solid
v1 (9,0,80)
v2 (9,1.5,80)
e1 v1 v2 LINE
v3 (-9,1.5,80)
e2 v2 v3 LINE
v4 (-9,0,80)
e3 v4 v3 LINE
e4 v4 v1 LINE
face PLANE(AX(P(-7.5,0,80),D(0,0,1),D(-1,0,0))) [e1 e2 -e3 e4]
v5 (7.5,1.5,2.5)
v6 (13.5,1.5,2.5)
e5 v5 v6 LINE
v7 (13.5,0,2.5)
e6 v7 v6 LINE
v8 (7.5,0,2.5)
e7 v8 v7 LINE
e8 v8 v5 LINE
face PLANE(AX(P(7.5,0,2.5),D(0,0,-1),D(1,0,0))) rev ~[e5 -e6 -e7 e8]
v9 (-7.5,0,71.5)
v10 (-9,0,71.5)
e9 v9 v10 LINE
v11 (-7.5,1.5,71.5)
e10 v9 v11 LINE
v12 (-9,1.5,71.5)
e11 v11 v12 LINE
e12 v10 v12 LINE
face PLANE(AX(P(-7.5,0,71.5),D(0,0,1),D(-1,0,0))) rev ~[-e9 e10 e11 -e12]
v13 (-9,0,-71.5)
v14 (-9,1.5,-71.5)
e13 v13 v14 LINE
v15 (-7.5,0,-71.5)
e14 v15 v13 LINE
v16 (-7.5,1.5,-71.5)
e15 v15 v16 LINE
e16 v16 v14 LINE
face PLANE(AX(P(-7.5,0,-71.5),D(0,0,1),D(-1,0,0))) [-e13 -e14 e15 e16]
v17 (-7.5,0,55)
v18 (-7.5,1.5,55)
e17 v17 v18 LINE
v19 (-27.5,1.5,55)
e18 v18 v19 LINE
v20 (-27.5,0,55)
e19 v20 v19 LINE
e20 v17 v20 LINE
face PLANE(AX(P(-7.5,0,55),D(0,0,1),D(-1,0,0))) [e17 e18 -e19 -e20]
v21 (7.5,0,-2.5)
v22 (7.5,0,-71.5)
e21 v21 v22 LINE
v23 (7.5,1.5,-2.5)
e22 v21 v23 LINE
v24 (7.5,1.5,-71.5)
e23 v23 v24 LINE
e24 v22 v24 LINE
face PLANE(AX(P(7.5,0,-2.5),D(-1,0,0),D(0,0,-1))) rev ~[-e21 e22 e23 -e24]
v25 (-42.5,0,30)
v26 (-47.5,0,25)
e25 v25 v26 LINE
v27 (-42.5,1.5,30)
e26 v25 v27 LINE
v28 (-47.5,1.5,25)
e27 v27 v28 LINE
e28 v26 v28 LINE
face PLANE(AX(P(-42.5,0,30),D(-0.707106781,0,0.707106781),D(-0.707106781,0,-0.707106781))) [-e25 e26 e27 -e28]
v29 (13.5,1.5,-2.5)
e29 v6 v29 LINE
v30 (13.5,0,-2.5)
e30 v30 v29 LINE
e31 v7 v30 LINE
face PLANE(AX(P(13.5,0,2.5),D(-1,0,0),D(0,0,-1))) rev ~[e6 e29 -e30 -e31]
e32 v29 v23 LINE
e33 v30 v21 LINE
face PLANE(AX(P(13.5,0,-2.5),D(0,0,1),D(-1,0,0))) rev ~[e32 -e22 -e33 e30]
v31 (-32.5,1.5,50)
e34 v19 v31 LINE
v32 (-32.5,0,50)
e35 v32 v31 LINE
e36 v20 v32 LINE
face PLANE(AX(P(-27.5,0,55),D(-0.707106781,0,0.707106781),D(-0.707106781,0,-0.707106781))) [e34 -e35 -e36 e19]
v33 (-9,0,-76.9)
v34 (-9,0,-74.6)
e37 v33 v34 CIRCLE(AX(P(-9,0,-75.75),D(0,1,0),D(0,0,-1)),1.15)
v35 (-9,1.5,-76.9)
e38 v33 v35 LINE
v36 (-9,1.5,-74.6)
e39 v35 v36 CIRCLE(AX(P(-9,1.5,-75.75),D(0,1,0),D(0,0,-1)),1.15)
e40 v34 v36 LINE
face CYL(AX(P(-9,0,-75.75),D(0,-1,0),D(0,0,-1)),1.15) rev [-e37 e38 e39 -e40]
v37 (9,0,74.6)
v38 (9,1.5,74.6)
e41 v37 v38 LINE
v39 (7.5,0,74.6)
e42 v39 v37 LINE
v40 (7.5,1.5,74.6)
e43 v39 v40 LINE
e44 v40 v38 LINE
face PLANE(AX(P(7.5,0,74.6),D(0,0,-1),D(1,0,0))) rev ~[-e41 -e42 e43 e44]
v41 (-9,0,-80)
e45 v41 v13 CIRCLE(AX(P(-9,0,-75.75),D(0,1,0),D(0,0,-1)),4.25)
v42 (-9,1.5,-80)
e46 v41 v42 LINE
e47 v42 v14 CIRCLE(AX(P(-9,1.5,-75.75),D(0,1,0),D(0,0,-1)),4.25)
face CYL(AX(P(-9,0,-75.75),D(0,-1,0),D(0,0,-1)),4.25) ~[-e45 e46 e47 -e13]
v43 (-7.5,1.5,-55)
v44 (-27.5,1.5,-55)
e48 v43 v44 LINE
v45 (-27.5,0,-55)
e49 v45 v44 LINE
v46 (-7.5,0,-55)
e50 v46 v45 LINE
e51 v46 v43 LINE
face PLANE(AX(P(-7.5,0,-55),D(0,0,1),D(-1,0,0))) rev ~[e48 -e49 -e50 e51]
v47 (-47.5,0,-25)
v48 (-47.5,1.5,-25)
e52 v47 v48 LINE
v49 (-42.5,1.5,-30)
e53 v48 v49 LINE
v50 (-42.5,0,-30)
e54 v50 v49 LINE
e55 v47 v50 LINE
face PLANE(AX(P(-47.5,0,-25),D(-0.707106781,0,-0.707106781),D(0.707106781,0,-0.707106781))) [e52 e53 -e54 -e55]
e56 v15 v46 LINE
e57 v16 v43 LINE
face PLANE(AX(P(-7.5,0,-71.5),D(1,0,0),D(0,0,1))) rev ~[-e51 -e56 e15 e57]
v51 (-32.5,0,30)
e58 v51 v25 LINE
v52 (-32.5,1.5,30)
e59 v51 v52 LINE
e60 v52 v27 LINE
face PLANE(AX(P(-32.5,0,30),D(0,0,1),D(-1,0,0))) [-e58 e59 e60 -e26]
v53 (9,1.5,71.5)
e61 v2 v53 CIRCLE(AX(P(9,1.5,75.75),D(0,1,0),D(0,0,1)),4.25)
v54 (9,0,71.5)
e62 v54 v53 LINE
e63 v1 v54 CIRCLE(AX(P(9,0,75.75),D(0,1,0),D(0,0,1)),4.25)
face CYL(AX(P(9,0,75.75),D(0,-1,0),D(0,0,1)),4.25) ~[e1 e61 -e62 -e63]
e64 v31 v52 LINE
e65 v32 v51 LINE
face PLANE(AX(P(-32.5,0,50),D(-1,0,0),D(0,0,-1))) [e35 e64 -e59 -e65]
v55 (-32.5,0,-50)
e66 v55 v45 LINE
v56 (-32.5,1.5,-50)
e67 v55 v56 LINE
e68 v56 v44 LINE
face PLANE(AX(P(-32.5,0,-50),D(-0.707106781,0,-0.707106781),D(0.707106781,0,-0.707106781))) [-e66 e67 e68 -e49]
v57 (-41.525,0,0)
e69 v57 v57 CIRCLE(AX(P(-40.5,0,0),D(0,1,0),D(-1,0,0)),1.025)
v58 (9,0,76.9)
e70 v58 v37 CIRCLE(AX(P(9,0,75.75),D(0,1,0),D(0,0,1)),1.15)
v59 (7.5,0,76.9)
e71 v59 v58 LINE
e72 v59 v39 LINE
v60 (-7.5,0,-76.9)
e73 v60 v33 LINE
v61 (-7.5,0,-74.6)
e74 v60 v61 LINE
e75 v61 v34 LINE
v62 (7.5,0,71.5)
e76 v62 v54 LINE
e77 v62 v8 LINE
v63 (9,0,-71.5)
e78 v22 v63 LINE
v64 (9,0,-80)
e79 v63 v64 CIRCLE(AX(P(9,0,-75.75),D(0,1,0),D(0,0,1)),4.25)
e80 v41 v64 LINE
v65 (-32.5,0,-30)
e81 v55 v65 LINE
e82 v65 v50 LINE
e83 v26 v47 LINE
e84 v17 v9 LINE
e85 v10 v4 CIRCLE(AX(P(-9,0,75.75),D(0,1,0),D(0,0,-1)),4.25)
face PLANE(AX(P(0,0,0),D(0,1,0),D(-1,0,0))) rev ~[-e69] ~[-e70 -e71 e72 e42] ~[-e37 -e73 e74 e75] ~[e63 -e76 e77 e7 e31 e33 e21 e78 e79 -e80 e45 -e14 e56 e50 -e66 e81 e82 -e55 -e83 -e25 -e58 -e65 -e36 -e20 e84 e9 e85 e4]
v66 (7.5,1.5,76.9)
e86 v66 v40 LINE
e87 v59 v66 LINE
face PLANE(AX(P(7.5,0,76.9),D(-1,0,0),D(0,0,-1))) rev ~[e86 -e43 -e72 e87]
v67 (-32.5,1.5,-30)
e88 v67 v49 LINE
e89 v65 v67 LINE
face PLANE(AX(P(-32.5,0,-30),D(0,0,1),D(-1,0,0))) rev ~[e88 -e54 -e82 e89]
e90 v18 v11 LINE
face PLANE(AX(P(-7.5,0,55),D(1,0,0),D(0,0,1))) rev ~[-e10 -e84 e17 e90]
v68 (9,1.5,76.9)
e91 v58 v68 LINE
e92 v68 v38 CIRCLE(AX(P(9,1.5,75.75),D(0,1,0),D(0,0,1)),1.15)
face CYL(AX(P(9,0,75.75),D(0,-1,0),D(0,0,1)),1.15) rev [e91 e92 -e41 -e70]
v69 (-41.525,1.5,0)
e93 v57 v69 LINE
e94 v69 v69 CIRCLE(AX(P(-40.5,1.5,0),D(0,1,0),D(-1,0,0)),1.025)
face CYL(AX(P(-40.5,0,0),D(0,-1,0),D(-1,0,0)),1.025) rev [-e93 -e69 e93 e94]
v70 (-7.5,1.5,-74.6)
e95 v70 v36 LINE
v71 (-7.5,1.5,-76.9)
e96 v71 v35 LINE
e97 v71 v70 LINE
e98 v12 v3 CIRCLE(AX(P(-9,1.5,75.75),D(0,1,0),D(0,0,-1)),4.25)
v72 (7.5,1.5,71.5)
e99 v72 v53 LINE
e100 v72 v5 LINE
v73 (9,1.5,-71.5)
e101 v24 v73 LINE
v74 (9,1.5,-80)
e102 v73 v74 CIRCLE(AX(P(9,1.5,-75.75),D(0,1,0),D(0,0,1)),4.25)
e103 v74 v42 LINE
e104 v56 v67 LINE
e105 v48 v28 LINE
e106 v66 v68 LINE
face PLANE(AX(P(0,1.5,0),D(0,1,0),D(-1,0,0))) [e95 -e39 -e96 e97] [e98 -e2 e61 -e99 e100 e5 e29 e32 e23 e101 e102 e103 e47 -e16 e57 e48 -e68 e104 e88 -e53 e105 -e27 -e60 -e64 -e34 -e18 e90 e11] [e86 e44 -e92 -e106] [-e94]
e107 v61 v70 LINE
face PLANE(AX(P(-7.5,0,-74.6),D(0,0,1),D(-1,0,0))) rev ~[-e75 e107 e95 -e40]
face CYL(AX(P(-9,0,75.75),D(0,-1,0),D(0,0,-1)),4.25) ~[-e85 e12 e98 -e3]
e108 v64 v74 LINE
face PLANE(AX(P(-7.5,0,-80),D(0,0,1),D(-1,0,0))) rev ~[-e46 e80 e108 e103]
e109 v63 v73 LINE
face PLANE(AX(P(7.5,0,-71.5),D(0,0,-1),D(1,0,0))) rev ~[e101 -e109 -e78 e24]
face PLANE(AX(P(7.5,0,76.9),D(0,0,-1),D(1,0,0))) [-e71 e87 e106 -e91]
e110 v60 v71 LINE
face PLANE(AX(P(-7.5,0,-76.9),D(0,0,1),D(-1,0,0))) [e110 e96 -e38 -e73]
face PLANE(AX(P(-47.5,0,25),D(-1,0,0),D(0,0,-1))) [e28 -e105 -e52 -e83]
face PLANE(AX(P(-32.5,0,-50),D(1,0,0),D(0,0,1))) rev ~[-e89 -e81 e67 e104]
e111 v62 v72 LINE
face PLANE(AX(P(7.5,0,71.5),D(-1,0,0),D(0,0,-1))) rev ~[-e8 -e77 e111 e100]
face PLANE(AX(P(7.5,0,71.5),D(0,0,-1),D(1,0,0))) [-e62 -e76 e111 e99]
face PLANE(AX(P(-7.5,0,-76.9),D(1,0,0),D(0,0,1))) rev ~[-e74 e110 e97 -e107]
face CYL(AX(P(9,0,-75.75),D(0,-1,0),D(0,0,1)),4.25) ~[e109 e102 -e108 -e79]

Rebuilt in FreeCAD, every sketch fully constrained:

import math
import FreeCAD as App
import Part
import Sketcher

doc = App.newDocument("Part")
params = doc.addObject("Spreadsheet::Sheet", "Params")
for row, (alias, value) in enumerate([
    ("sketch1_diameter", "2.05 mm"),
    ("sketch1_height", "5 mm"),
    ("sketch1_radius", "4.25 mm"),
    ("sketch1_radius2", "1.15 mm"),
    ("sketch1_width", "1.5 mm"),
    ("pad1_length", "1.5 mm"),
], start=1):
    params.set(f"A{row}", alias)
    params.set(f"B{row}", "=" + value)
    params.setAlias(f"B{row}", alias)

body = doc.addObject("PartDesign::Body", "Body")

# Sketch on XZ plane
sketch1 = doc.addObject("Sketcher::SketchObject", "Sketch")
body.addObject(sketch1)
sketch1.AttachmentSupport = (doc.XZ_Plane, [""])
sketch1.MapMode = "FlatFace"
sketch1.addGeometry(Part.LineSegment(App.Vector(-9, 80, 0), App.Vector(9, 80, 0)), False)
sketch1.addGeometry(Part.ArcOfCircle(Part.Circle(App.Vector(9, 75.8, 0), App.Vector(0, 0, 1), 4.2), math.radians(-90), math.radians(90)), False)
sketch1.addGeometry(Part.LineSegment(App.Vector(9, 71.5, 0), App.Vector(7.5, 71.5, 0)), False)
sketch1.addGeometry(Part.LineSegment(App.Vector(7.5, 71.5, 0), App.Vector(7.5, 2.5, 0)), False)
sketch1.addGeometry(Part.LineSegment(App.Vector(7.5, 2.5, 0), App.Vector(13.5, 2.5, 0)), False)
sketch1.addGeometry(Part.LineSegment(App.Vector(13.5, 2.5, 0), App.Vector(13.5, -2.5, 0)), False)
sketch1.addGeometry(Part.LineSegment(App.Vector(13.5, -2.5, 0), App.Vector(7.5, -2.5, 0)), False)
sketch1.addGeometry(Part.LineSegment(App.Vector(7.5, -2.5, 0), App.Vector(7.5, -71.5, 0)), False)
sketch1.addGeometry(Part.LineSegment(App.Vector(7.5, -71.5, 0), App.Vector(9, -71.5, 0)), False)
sketch1.addGeometry(Part.ArcOfCircle(Part.Circle(App.Vector(9, -75.8, 0), App.Vector(0, 0, 1), 4.2), math.radians(-90), math.radians(90)), False)
sketch1.addGeometry(Part.LineSegment(App.Vector(9, -80, 0), App.Vector(-9, -80, 0)), False)
sketch1.addGeometry(Part.ArcOfCircle(Part.Circle(App.Vector(-9, -75.8, 0), App.Vector(0, 0, 1), 4.2), math.radians(90), math.radians(270)), False)
sketch1.addGeometry(Part.LineSegment(App.Vector(-9, -71.5, 0), App.Vector(-7.5, -71.5, 0)), False)
sketch1.addGeometry(Part.LineSegment(App.Vector(-7.5, -71.5, 0), App.Vector(-7.5, -55, 0)), False)
sketch1.addGeometry(Part.LineSegment(App.Vector(-7.5, -55, 0), App.Vector(-27.5, -55, 0)), False)
sketch1.addGeometry(Part.LineSegment(App.Vector(-27.5, -55, 0), App.Vector(-32.5, -50, 0)), False)
sketch1.addGeometry(Part.LineSegment(App.Vector(-32.5, -50, 0), App.Vector(-32.5, -30, 0)), False)
sketch1.addGeometry(Part.LineSegment(App.Vector(-32.5, -30, 0), App.Vector(-42.5, -30, 0)), False)
sketch1.addGeometry(Part.LineSegment(App.Vector(-42.5, -30, 0), App.Vector(-47.5, -25, 0)), False)
sketch1.addGeometry(Part.LineSegment(App.Vector(-47.5, -25, 0), App.Vector(-47.5, 25, 0)), False)
sketch1.addGeometry(Part.LineSegment(App.Vector(-47.5, 25, 0), App.Vector(-42.5, 30, 0)), False)
sketch1.addGeometry(Part.LineSegment(App.Vector(-42.5, 30, 0), App.Vector(-32.5, 30, 0)), False)
sketch1.addGeometry(Part.LineSegment(App.Vector(-32.5, 30, 0), App.Vector(-32.5, 50, 0)), False)
sketch1.addGeometry(Part.LineSegment(App.Vector(-32.5, 50, 0), App.Vector(-27.5, 55, 0)), False)
sketch1.addGeometry(Part.LineSegment(App.Vector(-27.5, 55, 0), App.Vector(-7.5, 55, 0)), False)
sketch1.addGeometry(Part.LineSegment(App.Vector(-7.5, 55, 0), App.Vector(-7.5, 71.5, 0)), False)
sketch1.addGeometry(Part.LineSegment(App.Vector(-7.5, 71.5, 0), App.Vector(-9, 71.5, 0)), False)
sketch1.addGeometry(Part.ArcOfCircle(Part.Circle(App.Vector(-9, 75.8, 0), App.Vector(0, 0, 1), 4.2), math.radians(90), math.radians(270)), False)
sketch1.addGeometry(Part.LineSegment(App.Vector(-7.5, -76.9, 0), App.Vector(-7.5, -74.6, 0)), False)
sketch1.addGeometry(Part.LineSegment(App.Vector(-7.5, -74.6, 0), App.Vector(-9, -74.6, 0)), False)
sketch1.addGeometry(Part.ArcOfCircle(Part.Circle(App.Vector(-9, -75.8, 0), App.Vector(0, 0, 1), 1.2), math.radians(90), math.radians(270)), False)
sketch1.addGeometry(Part.LineSegment(App.Vector(-9, -76.9, 0), App.Vector(-7.5, -76.9, 0)), False)
sketch1.addGeometry(Part.LineSegment(App.Vector(7.5, 76.9, 0), App.Vector(7.5, 74.6, 0)), False)
sketch1.addGeometry(Part.LineSegment(App.Vector(7.5, 74.6, 0), App.Vector(9, 74.6, 0)), False)
sketch1.addGeometry(Part.ArcOfCircle(Part.Circle(App.Vector(9, 75.8, 0), App.Vector(0, 0, 1), 1.2), math.radians(-90), math.radians(90)), False)
sketch1.addGeometry(Part.LineSegment(App.Vector(9, 76.9, 0), App.Vector(7.5, 76.9, 0)), False)
sketch1.addGeometry(Part.Circle(App.Vector(-40.5, 0, 0), App.Vector(0, 0, 1), 1), False)
sketch1.addConstraint(Sketcher.Constraint("Tangent", 0, 2, 1, 2))
sketch1.addConstraint(Sketcher.Constraint("Tangent", 1, 1, 2, 1))
sketch1.addConstraint(Sketcher.Constraint("Coincident", 2, 2, 3, 1))
sketch1.addConstraint(Sketcher.Constraint("Coincident", 3, 2, 4, 1))
sketch1.addConstraint(Sketcher.Constraint("Coincident", 4, 2, 5, 1))
sketch1.addConstraint(Sketcher.Constraint("Coincident", 5, 2, 6, 1))
sketch1.addConstraint(Sketcher.Constraint("Coincident", 6, 2, 7, 1))
sketch1.addConstraint(Sketcher.Constraint("Coincident", 7, 2, 8, 1))
sketch1.addConstraint(Sketcher.Constraint("Tangent", 8, 2, 9, 2))
sketch1.addConstraint(Sketcher.Constraint("Tangent", 9, 1, 10, 1))
sketch1.addConstraint(Sketcher.Constraint("Tangent", 10, 2, 11, 2))
sketch1.addConstraint(Sketcher.Constraint("Tangent", 11, 1, 12, 1))
sketch1.addConstraint(Sketcher.Constraint("Coincident", 12, 2, 13, 1))
sketch1.addConstraint(Sketcher.Constraint("Coincident", 13, 2, 14, 1))
sketch1.addConstraint(Sketcher.Constraint("Coincident", 14, 2, 15, 1))
sketch1.addConstraint(Sketcher.Constraint("Coincident", 15, 2, 16, 1))
sketch1.addConstraint(Sketcher.Constraint("Coincident", 16, 2, 17, 1))
sketch1.addConstraint(Sketcher.Constraint("Coincident", 17, 2, 18, 1))
sketch1.addConstraint(Sketcher.Constraint("Coincident", 18, 2, 19, 1))
sketch1.addConstraint(Sketcher.Constraint("Coincident", 19, 2, 20, 1))
sketch1.addConstraint(Sketcher.Constraint("Coincident", 20, 2, 21, 1))
sketch1.addConstraint(Sketcher.Constraint("Coincident", 21, 2, 22, 1))
sketch1.addConstraint(Sketcher.Constraint("Coincident", 22, 2, 23, 1))
sketch1.addConstraint(Sketcher.Constraint("Coincident", 23, 2, 24, 1))
sketch1.addConstraint(Sketcher.Constraint("Coincident", 24, 2, 25, 1))
sketch1.addConstraint(Sketcher.Constraint("Coincident", 25, 2, 26, 1))
sketch1.addConstraint(Sketcher.Constraint("Tangent", 26, 2, 27, 2))
sketch1.addConstraint(Sketcher.Constraint("Tangent", 27, 1, 0, 1))
sketch1.addConstraint(Sketcher.Constraint("Coincident", 28, 2, 29, 1))
sketch1.addConstraint(Sketcher.Constraint("Tangent", 29, 2, 30, 1))
sketch1.addConstraint(Sketcher.Constraint("Tangent", 30, 2, 31, 1))
sketch1.addConstraint(Sketcher.Constraint("Coincident", 31, 2, 28, 1))
sketch1.addConstraint(Sketcher.Constraint("Coincident", 32, 2, 33, 1))
sketch1.addConstraint(Sketcher.Constraint("Tangent", 33, 2, 34, 1))
sketch1.addConstraint(Sketcher.Constraint("Tangent", 34, 2, 35, 1))
sketch1.addConstraint(Sketcher.Constraint("Coincident", 35, 2, 32, 1))
sketch1.addConstraint(Sketcher.Constraint("Horizontal", 0))
sketch1.addConstraint(Sketcher.Constraint("Horizontal", 2))
sketch1.addConstraint(Sketcher.Constraint("Vertical", 3))
sketch1.addConstraint(Sketcher.Constraint("Horizontal", 4))
sketch1.addConstraint(Sketcher.Constraint("Vertical", 5))
sketch1.addConstraint(Sketcher.Constraint("Horizontal", 6))
sketch1.addConstraint(Sketcher.Constraint("Vertical", 7))
sketch1.addConstraint(Sketcher.Constraint("Horizontal", 8))
sketch1.addConstraint(Sketcher.Constraint("Horizontal", 10))
sketch1.addConstraint(Sketcher.Constraint("Horizontal", 12))
sketch1.addConstraint(Sketcher.Constraint("Vertical", 13))
sketch1.addConstraint(Sketcher.Constraint("Horizontal", 14))
sketch1.addConstraint(Sketcher.Constraint("Vertical", 16))
sketch1.addConstraint(Sketcher.Constraint("Horizontal", 17))
sketch1.addConstraint(Sketcher.Constraint("Vertical", 19))
sketch1.addConstraint(Sketcher.Constraint("Horizontal", 21))
sketch1.addConstraint(Sketcher.Constraint("Vertical", 22))
sketch1.addConstraint(Sketcher.Constraint("Horizontal", 24))
sketch1.addConstraint(Sketcher.Constraint("Vertical", 25))
sketch1.addConstraint(Sketcher.Constraint("Horizontal", 26))
sketch1.addConstraint(Sketcher.Constraint("Vertical", 28))
sketch1.addConstraint(Sketcher.Constraint("Horizontal", 29))
sketch1.addConstraint(Sketcher.Constraint("Horizontal", 31))
sketch1.addConstraint(Sketcher.Constraint("Vertical", 32))
sketch1.addConstraint(Sketcher.Constraint("Horizontal", 33))
sketch1.addConstraint(Sketcher.Constraint("Horizontal", 35))
sketch1.addConstraint(Sketcher.Constraint("Coincident", 30, 3, 11, 3))
sketch1.addConstraint(Sketcher.Constraint("Coincident", 34, 3, 1, 3))
sketch1.addConstraint(Sketcher.Constraint("Equal", 1, 9))
sketch1.addConstraint(Sketcher.Constraint("Equal", 9, 11))
sketch1.addConstraint(Sketcher.Constraint("Equal", 11, 27))
sketch1.addConstraint(Sketcher.Constraint("Equal", 30, 34))
sketch1.addConstraint(Sketcher.Constraint("Symmetric", 1, 3, 11, 3, -1, 1))
sketch1.addConstraint(Sketcher.Constraint("Symmetric", 3, 2, 6, 2, -1))
sketch1.addConstraint(Sketcher.Constraint("Symmetric", 17, 2, 20, 2, -1))
sketch1.addConstraint(Sketcher.Constraint("Symmetric", 15, 2, 22, 2, -1))
sketch1.addConstraint(Sketcher.Constraint("Symmetric", 14, 2, 23, 2, -1))
sketch1.addConstraint(Sketcher.Constraint("PointOnObject", 36, 3, -1))
sketch1.addConstraint(Sketcher.Constraint("Parallel", 15, 18))
sketch1.addConstraint(Sketcher.Constraint("Perpendicular", 18, 20))
sketch1.addConstraint(Sketcher.Constraint("Parallel", 20, 23))
sketch1.addConstraint(Sketcher.Constraint("Vertical", 1, 3, 9, 3))
sketch1.addConstraint(Sketcher.Constraint("Vertical", 11, 3, 27, 3))
sketch1.addConstraint(Sketcher.Constraint("Vertical", 13, 2, 24, 2))
sketch1.addConstraint(Sketcher.Constraint("Vertical", 25, 2, 28, 2))
sketch1.addConstraint(Sketcher.Constraint("Vertical", 7, 2, 32, 2))
sketch1.addConstraint(Sketcher.Constraint("Equal", 8, 12))
sketch1.addConstraint(Sketcher.Constraint("Equal", 24, 16))
sketch1.addConstraint(Sketcher.Constraint("Equal", 15, 18))
sketch1.addConstraint(Sketcher.Constraint("Diameter", 36, 2.05))
sketch1.addConstraint(Sketcher.Constraint("DistanceY", 5, 2, 5, 1, 5.0))
sketch1.addConstraint(Sketcher.Constraint("Radius", 1, 4.25))
sketch1.addConstraint(Sketcher.Constraint("Radius", 30, 1.15))
sketch1.addConstraint(Sketcher.Constraint("DistanceX", 2, 2, 2, 1, 1.5))
sketch1.addConstraint(Sketcher.Constraint("DistanceY", 18, 2, -1, 1, 25.0))
sketch1.addConstraint(Sketcher.Constraint("DistanceX", 12, 2, 7, 2, 15.0))
sketch1.addConstraint(Sketcher.Constraint("DistanceX", 15, 2, 14, 2, 5.0))
sketch1.addConstraint(Sketcher.Constraint("DistanceX", 15, 2, 13, 2, 25.0))
sketch1.addConstraint(Sketcher.Constraint("DistanceX", 17, 2, 14, 2, 15.0))
sketch1.addConstraint(Sketcher.Constraint("DistanceX", 18, 2, 36, 3, 7.0))
sketch1.addConstraint(Sketcher.Constraint("DistanceX", 4, 1, 4, 2, 6.0))
sketch1.addConstraint(Sketcher.Constraint("DistanceY", 3, 2, 3, 1, 69.0))
sketch1.setExpression("Constraints[85]", "Params.sketch1_diameter")
sketch1.setExpression("Constraints[86]", "Params.sketch1_height")
sketch1.setExpression("Constraints[87]", "Params.sketch1_radius")
sketch1.setExpression("Constraints[88]", "Params.sketch1_radius2")
sketch1.setExpression("Constraints[89]", "Params.sketch1_width")
pad1 = doc.addObject("PartDesign::Pad", "Pad")
body.addObject(pad1)
pad1.Profile = sketch1
pad1.setExpression("Length", "Params.pad1_length")
pad1.Reversed = True

doc.recompute()
